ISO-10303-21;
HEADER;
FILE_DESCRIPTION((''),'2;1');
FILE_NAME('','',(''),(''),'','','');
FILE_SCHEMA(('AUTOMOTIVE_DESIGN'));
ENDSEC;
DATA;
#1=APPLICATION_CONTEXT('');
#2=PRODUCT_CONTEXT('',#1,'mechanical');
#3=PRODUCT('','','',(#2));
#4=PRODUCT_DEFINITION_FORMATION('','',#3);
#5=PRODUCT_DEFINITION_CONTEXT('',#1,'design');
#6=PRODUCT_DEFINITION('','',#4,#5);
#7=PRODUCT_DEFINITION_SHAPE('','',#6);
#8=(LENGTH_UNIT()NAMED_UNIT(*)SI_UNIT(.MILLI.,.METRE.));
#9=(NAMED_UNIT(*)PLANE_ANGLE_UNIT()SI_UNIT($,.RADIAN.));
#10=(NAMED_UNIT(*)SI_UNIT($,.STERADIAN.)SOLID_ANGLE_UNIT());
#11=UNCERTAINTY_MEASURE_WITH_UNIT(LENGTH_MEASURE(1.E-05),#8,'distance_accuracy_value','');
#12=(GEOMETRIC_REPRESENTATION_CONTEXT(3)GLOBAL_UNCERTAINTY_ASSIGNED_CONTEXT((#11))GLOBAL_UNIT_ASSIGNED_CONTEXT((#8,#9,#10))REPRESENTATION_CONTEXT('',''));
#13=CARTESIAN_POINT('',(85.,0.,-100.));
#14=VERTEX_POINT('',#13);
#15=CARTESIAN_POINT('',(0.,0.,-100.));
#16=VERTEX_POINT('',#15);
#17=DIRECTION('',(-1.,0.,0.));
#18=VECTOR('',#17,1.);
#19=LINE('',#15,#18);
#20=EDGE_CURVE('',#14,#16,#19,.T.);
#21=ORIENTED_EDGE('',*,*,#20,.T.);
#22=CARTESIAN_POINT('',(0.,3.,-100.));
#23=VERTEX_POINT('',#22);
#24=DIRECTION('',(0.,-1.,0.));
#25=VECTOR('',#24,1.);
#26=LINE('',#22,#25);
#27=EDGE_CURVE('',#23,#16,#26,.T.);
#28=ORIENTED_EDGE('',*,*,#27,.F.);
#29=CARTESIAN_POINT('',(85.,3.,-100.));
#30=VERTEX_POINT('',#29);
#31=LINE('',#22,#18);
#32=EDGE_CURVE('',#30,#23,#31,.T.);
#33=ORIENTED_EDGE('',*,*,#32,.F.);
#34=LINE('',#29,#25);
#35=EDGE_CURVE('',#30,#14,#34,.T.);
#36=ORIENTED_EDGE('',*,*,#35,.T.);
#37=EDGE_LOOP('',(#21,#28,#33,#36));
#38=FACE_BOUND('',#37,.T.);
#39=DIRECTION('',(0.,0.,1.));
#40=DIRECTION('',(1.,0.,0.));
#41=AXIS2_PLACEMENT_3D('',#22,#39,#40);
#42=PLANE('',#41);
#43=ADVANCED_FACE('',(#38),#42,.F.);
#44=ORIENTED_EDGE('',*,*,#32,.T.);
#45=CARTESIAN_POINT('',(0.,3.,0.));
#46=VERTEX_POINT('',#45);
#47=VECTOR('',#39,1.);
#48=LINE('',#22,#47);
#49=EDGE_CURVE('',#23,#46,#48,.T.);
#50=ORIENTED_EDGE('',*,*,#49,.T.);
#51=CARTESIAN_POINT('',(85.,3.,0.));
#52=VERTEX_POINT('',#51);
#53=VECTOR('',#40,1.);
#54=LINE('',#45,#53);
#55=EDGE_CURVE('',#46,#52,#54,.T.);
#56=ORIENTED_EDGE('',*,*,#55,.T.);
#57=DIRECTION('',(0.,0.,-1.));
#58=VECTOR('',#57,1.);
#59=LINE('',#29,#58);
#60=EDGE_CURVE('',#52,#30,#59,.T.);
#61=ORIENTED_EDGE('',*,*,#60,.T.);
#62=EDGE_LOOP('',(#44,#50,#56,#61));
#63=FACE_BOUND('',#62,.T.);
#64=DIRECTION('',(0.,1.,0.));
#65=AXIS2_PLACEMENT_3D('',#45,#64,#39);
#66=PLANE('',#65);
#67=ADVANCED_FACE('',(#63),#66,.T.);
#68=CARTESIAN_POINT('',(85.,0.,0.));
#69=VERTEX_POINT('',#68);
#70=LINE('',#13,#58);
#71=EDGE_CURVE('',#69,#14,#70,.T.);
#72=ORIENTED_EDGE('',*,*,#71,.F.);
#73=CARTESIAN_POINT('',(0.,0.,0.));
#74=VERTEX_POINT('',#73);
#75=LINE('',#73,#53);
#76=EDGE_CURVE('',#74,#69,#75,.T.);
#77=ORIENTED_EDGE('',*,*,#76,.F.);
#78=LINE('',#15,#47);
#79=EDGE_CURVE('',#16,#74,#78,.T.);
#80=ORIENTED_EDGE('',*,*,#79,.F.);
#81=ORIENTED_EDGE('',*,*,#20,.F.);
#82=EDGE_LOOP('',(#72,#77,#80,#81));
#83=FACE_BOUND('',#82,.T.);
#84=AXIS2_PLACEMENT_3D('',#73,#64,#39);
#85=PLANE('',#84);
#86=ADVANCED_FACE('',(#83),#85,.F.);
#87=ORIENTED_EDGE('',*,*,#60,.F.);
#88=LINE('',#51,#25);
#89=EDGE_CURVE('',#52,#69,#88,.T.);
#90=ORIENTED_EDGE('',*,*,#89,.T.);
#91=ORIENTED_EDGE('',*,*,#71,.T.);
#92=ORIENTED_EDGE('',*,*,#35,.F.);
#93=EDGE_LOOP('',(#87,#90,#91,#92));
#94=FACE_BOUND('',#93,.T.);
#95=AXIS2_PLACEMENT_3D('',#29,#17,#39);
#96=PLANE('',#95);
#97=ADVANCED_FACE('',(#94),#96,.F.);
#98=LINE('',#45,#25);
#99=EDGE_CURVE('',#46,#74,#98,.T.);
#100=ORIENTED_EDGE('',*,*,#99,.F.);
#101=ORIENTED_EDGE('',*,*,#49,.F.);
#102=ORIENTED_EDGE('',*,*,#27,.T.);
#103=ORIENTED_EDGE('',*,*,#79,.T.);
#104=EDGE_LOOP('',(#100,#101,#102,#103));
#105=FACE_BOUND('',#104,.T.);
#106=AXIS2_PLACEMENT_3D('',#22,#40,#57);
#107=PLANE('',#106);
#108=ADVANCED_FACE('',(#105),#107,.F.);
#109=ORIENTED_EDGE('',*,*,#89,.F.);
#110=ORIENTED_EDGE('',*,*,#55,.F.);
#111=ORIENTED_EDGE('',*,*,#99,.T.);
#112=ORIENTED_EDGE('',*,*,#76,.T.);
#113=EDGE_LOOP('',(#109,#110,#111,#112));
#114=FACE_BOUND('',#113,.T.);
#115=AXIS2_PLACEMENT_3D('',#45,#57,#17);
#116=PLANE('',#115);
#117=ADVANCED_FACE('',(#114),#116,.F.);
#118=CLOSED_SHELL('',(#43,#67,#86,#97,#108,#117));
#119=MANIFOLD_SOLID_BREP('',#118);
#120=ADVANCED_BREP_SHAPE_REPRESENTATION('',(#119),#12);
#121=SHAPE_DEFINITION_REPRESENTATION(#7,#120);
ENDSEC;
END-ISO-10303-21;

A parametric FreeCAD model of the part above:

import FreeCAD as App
import Part
import Sketcher
from FreeCAD import Vector
Q = App.Units.Quantity


def add_polygon(sketch, points):
    """Adds a closed chain of lines whose ends are joined by coincident constraints."""
    first, n = sketch.GeometryCount, len(points)
    for a, b in zip(points, points[1:] + points[:1]):
        sketch.addGeometry(Part.LineSegment(App.Vector(*a, 0), App.Vector(*b, 0)), False)
    for i in range(n):
        sketch.addConstraint(Sketcher.Constraint("Coincident", first + i, 2, first + (i + 1) % n, 1))

doc = App.newDocument("Part")
body = doc.addObject("PartDesign::Body", "Body")

# Sketch on XZ plane
sketch1 = doc.addObject("Sketcher::SketchObject", "Sketch")
body.addObject(sketch1)
sketch1.AttachmentSupport = (doc.XZ_Plane, [""])
sketch1.MapMode = "FlatFace"
add_polygon(sketch1, [(0, -100), (0, 0), (85, 0), (85, -100)])  # lines 0-3
sketch1.addConstraint(Sketcher.Constraint("Vertical", 0))
sketch1.addConstraint(Sketcher.Constraint("Horizontal", 1))
sketch1.addConstraint(Sketcher.Constraint("Vertical", 2))
sketch1.addConstraint(Sketcher.Constraint("Horizontal", 3))
sketch1.addConstraint(Sketcher.Constraint("Coincident", 0, 2, -1, 1))
sketch1.addConstraint(Sketcher.Constraint("DistanceX", 1, 1, 1, 2, Q("85 mm")))
sketch1.addConstraint(Sketcher.Constraint("DistanceY", 0, 1, 0, 2, Q("100 mm")))
pad1 = doc.addObject("PartDesign::Pad", "Pad")
body.addObject(pad1)
pad1.Profile = sketch1
pad1.Length = 3
pad1.Reversed = True

doc.recompute()
